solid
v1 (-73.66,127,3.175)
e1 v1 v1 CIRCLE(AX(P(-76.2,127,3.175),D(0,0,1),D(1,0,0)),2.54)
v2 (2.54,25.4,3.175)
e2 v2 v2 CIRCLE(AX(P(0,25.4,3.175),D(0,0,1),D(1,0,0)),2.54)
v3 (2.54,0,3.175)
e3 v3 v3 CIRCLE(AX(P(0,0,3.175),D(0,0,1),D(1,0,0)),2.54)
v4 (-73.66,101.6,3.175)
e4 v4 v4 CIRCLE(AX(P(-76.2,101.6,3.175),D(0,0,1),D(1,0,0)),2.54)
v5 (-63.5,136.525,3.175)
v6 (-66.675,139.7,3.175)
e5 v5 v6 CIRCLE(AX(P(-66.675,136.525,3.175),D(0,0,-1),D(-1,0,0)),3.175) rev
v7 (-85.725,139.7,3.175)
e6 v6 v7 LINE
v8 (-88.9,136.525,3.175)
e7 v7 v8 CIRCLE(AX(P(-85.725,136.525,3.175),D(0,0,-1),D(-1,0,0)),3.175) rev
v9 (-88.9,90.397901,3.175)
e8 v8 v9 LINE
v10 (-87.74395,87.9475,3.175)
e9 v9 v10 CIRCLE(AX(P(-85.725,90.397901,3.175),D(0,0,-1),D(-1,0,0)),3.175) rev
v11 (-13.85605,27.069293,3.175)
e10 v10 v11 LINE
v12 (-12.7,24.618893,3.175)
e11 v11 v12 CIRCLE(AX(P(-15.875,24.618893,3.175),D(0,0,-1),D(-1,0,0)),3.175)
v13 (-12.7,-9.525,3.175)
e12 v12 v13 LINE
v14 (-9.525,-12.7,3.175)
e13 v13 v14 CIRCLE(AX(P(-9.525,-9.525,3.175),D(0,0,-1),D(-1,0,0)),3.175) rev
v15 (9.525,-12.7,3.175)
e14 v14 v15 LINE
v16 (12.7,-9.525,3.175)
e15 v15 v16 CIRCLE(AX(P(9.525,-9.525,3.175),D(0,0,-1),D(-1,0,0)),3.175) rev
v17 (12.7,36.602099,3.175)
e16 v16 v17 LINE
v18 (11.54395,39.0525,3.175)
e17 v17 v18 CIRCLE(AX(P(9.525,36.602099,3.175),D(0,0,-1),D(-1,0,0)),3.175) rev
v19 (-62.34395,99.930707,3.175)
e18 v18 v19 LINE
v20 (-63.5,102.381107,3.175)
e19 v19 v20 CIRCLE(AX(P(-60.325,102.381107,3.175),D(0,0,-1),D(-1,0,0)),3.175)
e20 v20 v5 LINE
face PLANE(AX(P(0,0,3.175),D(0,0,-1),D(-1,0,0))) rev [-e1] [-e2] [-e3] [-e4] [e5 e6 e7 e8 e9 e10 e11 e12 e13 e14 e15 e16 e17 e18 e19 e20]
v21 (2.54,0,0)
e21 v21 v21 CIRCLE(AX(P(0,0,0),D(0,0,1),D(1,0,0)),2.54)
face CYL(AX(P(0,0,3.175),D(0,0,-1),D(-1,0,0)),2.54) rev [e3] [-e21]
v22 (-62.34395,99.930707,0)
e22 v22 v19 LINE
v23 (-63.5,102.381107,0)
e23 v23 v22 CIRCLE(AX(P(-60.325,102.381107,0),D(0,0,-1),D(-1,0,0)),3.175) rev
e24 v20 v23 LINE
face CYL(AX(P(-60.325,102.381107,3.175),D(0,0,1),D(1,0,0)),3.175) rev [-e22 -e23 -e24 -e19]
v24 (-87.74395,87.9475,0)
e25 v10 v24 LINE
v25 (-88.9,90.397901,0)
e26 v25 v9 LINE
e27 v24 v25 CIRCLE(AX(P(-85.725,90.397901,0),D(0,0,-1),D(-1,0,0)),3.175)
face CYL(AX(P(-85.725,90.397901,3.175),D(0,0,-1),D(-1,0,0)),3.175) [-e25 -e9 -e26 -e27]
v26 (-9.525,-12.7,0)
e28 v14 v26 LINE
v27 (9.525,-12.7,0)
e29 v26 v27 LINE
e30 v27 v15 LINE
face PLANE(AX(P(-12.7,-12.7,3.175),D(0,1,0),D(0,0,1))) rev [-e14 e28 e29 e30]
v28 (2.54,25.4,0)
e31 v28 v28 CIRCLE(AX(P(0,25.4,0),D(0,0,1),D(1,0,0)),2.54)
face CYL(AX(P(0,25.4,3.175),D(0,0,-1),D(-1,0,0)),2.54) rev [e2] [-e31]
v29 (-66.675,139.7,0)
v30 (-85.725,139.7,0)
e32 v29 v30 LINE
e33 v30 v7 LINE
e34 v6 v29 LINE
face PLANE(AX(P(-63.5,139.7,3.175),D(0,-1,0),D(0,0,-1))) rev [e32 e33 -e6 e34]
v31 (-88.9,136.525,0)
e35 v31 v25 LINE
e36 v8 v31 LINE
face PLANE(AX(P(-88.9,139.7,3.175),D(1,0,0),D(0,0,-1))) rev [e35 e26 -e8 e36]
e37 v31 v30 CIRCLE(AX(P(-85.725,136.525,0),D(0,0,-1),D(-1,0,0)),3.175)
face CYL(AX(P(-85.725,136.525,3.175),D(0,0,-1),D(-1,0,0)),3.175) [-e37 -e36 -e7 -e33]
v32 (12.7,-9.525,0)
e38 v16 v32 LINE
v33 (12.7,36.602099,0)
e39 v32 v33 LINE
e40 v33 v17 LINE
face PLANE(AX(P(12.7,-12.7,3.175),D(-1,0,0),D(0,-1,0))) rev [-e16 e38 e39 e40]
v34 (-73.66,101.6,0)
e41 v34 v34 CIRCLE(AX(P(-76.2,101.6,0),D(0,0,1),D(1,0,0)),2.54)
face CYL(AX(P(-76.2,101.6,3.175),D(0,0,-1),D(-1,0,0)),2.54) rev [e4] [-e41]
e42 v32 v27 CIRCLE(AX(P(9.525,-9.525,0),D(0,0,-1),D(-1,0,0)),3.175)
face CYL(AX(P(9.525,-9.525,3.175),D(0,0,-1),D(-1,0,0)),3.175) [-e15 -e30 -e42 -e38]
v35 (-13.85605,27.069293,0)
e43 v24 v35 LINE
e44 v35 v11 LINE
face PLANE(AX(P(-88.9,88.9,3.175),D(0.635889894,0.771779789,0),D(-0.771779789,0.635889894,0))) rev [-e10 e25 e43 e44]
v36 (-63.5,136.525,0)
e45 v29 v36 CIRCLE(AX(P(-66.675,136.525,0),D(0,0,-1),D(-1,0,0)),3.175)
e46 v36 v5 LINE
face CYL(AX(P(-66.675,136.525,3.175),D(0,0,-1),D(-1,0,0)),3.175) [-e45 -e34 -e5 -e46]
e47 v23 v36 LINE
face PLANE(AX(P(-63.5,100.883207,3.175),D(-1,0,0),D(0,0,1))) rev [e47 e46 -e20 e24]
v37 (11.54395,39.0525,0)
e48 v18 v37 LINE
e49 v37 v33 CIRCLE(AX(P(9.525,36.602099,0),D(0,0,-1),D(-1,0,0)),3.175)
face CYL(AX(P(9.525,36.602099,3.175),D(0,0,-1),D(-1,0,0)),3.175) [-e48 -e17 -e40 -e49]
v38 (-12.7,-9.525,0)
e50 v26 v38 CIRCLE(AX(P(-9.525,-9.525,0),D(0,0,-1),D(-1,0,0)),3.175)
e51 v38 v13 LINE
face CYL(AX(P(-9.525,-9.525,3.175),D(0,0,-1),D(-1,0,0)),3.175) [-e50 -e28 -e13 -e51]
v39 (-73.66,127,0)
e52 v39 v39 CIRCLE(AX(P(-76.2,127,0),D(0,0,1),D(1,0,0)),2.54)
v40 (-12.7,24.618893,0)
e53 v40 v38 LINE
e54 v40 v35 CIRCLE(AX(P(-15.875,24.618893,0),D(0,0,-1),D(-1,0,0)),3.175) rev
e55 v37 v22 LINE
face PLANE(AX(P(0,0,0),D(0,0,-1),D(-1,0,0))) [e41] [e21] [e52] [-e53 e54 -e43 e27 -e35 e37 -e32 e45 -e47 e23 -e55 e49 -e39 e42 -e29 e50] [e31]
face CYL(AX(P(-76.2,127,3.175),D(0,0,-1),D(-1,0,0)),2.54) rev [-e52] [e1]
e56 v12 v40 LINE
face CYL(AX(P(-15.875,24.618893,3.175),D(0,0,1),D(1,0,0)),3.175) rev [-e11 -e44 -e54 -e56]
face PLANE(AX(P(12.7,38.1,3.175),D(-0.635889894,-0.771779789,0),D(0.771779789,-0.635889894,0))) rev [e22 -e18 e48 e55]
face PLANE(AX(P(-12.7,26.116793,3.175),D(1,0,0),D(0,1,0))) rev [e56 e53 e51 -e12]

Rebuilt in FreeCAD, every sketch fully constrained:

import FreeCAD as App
import Part
import Sketcher

V = App.Vector
Q = App.Units.Quantity


def edges_at(feature, points):
    """Names of the edges that pass closest to the given points."""
    edges = feature.Shape.Edges
    near = lambda p: min(range(len(edges)), key=lambda i: edges[i].distToShape(Part.Vertex(*p))[0])
    return sorted({f"Edge{near(p) + 1}" for p in points})


def add_polygon(sketch, points):
    """Adds a closed chain of lines whose ends are joined by coincident constraints."""
    first, n = sketch.GeometryCount, len(points)
    for a, b in zip(points, points[1:] + points[:1]):
        sketch.addGeometry(Part.LineSegment(App.Vector(*a, 0), App.Vector(*b, 0)), False)
    for i in range(n):
        sketch.addConstraint(Sketcher.Constraint("Coincident", first + i, 2, first + (i + 1) % n, 1))

doc = App.newDocument("Part")
body = doc.addObject("PartDesign::Body", "Body")

# Sketch on XY plane
sketch1 = doc.addObject("Sketcher::SketchObject", "Sketch")
body.addObject(sketch1)
sketch1.AttachmentSupport = (doc.XY_Plane, [""])
sketch1.MapMode = "FlatFace"
add_polygon(sketch1, [(-12.7, -12.7), (12.7, -12.7), (12.7, 38.1), (-63.5, 100.9), (-63.5, 139.7), (-88.9, 139.7), (-88.9, 88.9), (-12.7, 26.1)])  # lines 0-7
sketch1.addGeometry(Part.Circle(V(0, 0, 0), V(0, 0, 1), 2.5), False)  # 8
sketch1.addGeometry(Part.Circle(V(0, 25.4, 0), V(0, 0, 1), 2.5), False)  # 9
sketch1.addGeometry(Part.Circle(V(-76.2, 101.6, 0), V(0, 0, 1), 2.5), False)  # 10
sketch1.addGeometry(Part.Circle(V(-76.2, 127, 0), V(0, 0, 1), 2.5), False)  # 11
sketch1.addConstraint([
    Sketcher.Constraint("Horizontal", 0),
    Sketcher.Constraint("Vertical", 1),
    Sketcher.Constraint("Vertical", 3),
    Sketcher.Constraint("Horizontal", 4),
    Sketcher.Constraint("Vertical", 5),
    Sketcher.Constraint("Vertical", 7),
    Sketcher.Constraint("Coincident", 8, 3, -1, 1),
    Sketcher.Constraint("Equal", 8, 9),
    Sketcher.Constraint("Equal", 9, 10),
    Sketcher.Constraint("Equal", 10, 11),
    Sketcher.Constraint("PointOnObject", 9, 3, -2),
    Sketcher.Constraint("Parallel", 2, 6),
    Sketcher.Constraint("Vertical", 10, 3, 11, 3),
    Sketcher.Constraint("Equal", 0, 4),
    Sketcher.Constraint("Equal", 1, 5),
    Sketcher.Constraint("Diameter", 8, Q("0.2 in")),
    Sketcher.Constraint("DistanceX", 0, 1, 0, 2, Q("1 in")),
    Sketcher.Constraint("DistanceY", 1, 1, 1, 2, Q("2 in")),
    Sketcher.Constraint("DistanceY", -1, 1, 9, 3, Q("1 in")),
    Sketcher.Constraint("DistanceX", 10, 3, -1, 1, Q("3 in")),
    Sketcher.Constraint("DistanceY", -1, 1, 10, 3, Q("4 in")),
    Sketcher.Constraint("DistanceY", -1, 1, 11, 3, Q("5 in")),
    Sketcher.Constraint("DistanceX", 2, 2, 1, 2, Q("3 in")),
    Sketcher.Constraint("DistanceY", 1, 2, 3, 2, Q("4 in")),
    Sketcher.Constraint("DistanceX", -1, 1, 0, 2, Q("0.5 in")),
    Sketcher.Constraint("DistanceY", 0, 2, -1, 1, Q("0.5 in")),
    Sketcher.Constraint("DistanceY", 3, 1, 3, 2, 38.816793),
])
pad1 = doc.addObject("PartDesign::Pad", "Pad")
body.addObject(pad1)
pad1.Profile = sketch1
pad1.Length = Q("0.125 in")
doc.recompute()

fillet = doc.addObject("PartDesign::Fillet", "Fillet")
body.addObject(fillet)
fillet.Base = (pad1, edges_at(pad1, [
    (-88.9, 88.9, 1.587),
    (-88.9, 139.7, 1.587),
    (-63.5, 139.7, 1.587),
    (-63.5, 100.883, 1.587),
    (12.7, 38.1, 1.587),
    (12.7, -12.7, 1.587),
    (-12.7, -12.7, 1.587),
    (-12.7, 26.117, 1.587),
]))
fillet.Radius = Q("0.125 in")

doc.recompute()
